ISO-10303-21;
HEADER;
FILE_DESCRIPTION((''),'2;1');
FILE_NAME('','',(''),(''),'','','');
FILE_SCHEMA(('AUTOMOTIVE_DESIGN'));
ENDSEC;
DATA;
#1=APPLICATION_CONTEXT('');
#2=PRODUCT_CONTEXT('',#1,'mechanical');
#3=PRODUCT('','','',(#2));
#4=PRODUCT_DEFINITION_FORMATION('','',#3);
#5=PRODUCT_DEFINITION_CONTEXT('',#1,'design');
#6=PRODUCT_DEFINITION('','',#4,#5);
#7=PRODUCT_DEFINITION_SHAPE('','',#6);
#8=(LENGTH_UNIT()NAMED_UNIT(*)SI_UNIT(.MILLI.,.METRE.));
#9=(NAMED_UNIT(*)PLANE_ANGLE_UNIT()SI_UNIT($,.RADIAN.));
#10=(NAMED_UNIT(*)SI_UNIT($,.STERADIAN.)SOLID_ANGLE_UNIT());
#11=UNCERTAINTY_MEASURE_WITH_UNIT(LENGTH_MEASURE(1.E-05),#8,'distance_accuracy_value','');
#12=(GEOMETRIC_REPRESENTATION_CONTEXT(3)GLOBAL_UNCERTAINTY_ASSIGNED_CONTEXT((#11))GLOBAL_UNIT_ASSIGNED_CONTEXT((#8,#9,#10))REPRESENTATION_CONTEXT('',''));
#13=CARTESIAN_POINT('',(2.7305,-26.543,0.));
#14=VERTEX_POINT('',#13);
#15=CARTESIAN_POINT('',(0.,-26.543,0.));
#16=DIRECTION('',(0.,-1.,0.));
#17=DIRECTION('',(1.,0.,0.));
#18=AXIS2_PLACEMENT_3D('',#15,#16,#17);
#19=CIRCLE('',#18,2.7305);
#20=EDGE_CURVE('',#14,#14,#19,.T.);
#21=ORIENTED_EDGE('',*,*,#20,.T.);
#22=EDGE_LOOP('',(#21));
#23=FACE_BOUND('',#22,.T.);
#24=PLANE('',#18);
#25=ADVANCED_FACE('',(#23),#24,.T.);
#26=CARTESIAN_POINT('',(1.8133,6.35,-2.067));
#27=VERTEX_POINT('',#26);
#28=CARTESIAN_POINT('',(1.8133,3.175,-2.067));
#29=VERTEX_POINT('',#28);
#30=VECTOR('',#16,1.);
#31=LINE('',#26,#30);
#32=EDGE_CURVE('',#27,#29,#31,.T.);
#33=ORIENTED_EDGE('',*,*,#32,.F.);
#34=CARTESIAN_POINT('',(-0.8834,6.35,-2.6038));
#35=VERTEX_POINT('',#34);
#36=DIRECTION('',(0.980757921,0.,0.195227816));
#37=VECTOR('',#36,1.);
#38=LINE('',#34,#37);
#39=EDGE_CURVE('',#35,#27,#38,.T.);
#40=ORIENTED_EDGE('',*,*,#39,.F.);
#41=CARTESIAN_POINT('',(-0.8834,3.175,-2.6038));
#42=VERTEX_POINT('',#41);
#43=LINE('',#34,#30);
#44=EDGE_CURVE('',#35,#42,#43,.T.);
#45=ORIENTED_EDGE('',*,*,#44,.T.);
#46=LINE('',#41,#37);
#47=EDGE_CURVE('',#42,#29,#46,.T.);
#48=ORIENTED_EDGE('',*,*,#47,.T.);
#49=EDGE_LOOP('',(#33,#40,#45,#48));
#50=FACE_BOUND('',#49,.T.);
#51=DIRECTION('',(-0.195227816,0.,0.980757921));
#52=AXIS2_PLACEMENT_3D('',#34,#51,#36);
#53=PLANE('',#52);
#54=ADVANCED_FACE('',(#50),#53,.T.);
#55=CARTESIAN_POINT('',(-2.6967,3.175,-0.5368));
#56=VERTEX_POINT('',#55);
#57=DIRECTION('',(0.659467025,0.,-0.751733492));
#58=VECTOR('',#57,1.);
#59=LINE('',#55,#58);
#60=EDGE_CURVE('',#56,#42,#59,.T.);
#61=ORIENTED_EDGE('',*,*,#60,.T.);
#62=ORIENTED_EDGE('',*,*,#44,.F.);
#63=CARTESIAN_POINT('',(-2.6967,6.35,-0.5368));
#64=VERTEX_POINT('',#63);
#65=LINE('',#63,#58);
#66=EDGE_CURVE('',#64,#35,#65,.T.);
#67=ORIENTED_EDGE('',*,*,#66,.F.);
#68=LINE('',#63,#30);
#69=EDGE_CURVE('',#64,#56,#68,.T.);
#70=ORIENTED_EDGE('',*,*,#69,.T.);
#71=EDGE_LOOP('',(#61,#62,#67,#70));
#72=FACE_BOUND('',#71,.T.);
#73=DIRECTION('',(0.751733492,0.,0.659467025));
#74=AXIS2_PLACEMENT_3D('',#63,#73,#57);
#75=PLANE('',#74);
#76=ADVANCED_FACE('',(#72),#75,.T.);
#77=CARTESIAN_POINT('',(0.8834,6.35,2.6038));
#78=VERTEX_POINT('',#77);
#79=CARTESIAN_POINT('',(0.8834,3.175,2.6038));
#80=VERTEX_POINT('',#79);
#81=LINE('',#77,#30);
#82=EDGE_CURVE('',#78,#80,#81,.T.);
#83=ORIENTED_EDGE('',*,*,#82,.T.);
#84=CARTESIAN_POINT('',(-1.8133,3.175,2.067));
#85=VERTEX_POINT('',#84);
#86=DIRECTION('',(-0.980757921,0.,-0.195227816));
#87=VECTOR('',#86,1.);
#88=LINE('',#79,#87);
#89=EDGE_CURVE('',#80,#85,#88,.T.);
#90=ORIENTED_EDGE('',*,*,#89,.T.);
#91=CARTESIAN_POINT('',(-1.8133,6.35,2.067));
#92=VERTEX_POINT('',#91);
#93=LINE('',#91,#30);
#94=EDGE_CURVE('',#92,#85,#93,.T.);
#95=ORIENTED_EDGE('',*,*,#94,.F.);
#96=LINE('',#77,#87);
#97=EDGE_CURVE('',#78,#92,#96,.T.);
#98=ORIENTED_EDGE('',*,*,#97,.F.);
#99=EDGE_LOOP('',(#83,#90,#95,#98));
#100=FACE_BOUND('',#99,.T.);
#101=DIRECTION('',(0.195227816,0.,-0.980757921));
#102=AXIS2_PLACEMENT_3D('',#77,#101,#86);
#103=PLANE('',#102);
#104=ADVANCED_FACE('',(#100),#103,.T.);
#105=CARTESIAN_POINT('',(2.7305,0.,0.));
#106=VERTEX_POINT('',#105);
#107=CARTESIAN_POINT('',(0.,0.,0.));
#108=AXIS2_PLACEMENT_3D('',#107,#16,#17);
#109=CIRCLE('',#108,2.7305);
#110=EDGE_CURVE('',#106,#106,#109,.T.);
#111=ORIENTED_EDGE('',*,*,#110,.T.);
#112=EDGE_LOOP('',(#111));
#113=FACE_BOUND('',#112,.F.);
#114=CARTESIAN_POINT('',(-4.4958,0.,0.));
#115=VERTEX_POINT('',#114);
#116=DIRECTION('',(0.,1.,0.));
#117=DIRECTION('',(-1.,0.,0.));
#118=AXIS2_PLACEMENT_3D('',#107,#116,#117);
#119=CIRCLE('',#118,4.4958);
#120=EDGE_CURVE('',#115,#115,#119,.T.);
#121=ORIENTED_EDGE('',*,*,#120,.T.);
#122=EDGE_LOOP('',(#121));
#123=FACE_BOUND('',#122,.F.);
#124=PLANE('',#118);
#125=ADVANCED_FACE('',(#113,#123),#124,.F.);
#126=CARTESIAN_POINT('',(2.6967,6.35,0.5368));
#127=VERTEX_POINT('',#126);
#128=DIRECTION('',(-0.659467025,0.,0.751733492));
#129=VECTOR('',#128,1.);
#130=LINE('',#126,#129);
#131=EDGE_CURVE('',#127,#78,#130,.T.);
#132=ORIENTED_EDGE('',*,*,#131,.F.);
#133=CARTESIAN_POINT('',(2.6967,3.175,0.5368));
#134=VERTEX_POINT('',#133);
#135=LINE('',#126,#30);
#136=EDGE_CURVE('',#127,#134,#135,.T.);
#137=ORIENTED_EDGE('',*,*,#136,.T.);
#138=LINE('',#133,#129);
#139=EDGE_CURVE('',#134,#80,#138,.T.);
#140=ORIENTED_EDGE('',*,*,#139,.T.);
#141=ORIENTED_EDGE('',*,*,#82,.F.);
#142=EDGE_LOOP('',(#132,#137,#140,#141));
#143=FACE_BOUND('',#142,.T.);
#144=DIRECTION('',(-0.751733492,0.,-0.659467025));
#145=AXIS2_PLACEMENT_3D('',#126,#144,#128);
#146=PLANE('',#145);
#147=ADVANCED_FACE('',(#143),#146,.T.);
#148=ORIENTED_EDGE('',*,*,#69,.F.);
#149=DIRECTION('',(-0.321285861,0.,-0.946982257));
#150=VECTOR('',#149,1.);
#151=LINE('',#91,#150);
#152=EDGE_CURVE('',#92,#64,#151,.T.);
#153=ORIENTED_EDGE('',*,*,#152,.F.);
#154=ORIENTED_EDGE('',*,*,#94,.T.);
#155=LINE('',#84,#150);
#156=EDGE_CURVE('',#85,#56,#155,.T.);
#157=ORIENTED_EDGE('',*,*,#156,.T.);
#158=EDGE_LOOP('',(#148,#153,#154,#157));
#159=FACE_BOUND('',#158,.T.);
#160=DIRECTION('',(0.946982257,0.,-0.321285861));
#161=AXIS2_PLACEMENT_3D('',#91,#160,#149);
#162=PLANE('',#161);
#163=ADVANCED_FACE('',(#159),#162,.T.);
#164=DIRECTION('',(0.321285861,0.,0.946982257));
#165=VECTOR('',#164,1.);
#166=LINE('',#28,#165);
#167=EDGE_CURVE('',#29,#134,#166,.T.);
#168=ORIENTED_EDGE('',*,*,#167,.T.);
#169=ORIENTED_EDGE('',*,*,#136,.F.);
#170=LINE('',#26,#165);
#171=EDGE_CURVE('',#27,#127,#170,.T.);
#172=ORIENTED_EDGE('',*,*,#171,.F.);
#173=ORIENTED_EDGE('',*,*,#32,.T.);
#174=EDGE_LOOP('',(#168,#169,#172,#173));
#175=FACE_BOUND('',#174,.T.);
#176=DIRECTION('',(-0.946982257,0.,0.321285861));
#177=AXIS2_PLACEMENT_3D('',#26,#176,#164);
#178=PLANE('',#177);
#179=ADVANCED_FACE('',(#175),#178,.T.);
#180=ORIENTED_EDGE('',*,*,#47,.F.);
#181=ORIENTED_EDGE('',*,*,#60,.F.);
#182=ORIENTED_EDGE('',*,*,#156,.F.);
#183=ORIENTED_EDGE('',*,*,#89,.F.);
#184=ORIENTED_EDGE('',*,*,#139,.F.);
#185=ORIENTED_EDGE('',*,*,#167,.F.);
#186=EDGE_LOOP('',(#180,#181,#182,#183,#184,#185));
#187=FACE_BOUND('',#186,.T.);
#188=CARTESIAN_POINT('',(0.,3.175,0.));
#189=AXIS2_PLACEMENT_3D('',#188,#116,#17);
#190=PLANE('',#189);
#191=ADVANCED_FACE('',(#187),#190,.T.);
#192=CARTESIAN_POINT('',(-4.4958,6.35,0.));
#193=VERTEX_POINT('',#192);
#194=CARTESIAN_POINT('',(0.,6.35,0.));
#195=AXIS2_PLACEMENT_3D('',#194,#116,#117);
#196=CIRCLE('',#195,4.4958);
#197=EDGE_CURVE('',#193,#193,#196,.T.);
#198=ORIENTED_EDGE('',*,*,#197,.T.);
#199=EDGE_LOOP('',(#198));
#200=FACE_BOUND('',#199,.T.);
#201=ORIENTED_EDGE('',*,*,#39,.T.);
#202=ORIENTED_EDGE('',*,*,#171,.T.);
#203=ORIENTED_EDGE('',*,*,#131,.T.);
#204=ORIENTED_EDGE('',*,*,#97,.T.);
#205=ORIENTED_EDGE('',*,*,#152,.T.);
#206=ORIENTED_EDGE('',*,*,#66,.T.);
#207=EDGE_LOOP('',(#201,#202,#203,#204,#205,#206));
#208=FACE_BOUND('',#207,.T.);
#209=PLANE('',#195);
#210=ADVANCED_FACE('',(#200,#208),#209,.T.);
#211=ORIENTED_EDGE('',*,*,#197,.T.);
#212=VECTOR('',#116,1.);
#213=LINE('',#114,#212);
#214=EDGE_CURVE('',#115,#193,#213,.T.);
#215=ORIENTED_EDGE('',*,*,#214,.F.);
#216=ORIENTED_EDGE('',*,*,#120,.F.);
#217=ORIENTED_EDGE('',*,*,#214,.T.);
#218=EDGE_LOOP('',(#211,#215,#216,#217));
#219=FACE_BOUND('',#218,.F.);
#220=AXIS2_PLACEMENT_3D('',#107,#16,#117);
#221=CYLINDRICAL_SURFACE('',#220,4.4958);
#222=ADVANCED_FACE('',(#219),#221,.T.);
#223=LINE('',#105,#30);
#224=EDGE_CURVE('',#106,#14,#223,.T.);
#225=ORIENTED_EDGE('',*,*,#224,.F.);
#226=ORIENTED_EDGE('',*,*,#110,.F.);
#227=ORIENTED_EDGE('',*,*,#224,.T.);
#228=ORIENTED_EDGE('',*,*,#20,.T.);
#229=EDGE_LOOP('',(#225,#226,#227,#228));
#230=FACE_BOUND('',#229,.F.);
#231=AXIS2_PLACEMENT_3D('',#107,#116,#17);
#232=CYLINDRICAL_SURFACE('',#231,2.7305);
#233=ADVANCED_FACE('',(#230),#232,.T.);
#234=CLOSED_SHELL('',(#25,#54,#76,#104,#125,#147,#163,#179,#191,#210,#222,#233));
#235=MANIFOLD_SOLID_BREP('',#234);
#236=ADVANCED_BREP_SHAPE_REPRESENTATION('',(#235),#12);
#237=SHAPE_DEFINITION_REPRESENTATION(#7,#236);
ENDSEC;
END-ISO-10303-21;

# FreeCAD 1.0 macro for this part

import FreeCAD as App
import Part
import Sketcher
Q = App.Units.Quantity


def add_polygon(sketch, points):
    """Adds a closed chain of lines whose ends are joined by coincident constraints."""
    first, n = sketch.GeometryCount, len(points)
    for a, b in zip(points, points[1:] + points[:1]):
        sketch.addGeometry(Part.LineSegment(App.Vector(*a, 0), App.Vector(*b, 0)), False)
    for i in range(n):
        sketch.addConstraint(Sketcher.Constraint("Coincident", first + i, 2, first + (i + 1) % n, 1))

doc = App.newDocument("Part")
params = doc.addObject("Spreadsheet::Sheet", "Params")
for row, (alias, value) in enumerate([
    ("sketch1_diameter", "0.354 in"),
    ("pad1_length", "0.25 in"),
    ("pocket1_length", "0.125 in"),
    ("sketch3_diameter", "0.215 in"),
    ("pad2_length", "1.045 in"),
], start=1):
    params.set(f"A{row}", alias)
    params.set(f"B{row}", "=" + value)
    params.setAlias(f"B{row}", alias)

body = doc.addObject("PartDesign::Body", "Body")

sketch1 = body.newObject("Sketcher::SketchObject", "Sketch")
sketch1.AttachmentSupport = (doc.getObject("XZ_Plane"), [""])
sketch1.MapMode = "FlatFace"
sketch1.addGeometry(Part.Circle(App.Vector(0, 0, 0), App.Vector(0, 0, 1), 4.5), False)
sketch1.addConstraint([
    Sketcher.Constraint("Coincident", 0, 3, -1, 1),
    Sketcher.Constraint("Diameter", 0, Q("0.354 in")),
])
sketch1.setExpression("Constraints[1]", "Params.sketch1_diameter")
pad1 = body.newObject("PartDesign::Pad", "Pad")
pad1.Profile = sketch1
pad1.setExpression("Length", "Params.pad1_length")
pad1.Reversed = True

sketch2 = body.newObject("Sketcher::SketchObject", "Sketch001")
sketch2.AttachmentSupport = (doc.getObject("XZ_Plane"), [""])
sketch2.MapMode = "FlatFace"
sketch2.AttachmentOffset = App.Placement(App.Vector(0, 0, -0.25 * 25.4), App.Rotation())
add_polygon(sketch2, [(1.8, -2.1), (-0.9, -2.6), (-2.7, -0.5), (-1.8, 2.1), (0.9, 2.6), (2.7, 0.5)])
sketch2.addConstraint([
    Sketcher.Constraint("Symmetric", 0, 2, 3, 2, -1, 1),
    Sketcher.Constraint("Symmetric", 1, 2, 4, 2, -1, 1),
    Sketcher.Constraint("Symmetric", 2, 2, 5, 2, -1, 1),
    Sketcher.Constraint("Equal", 0, 1),
    Sketcher.Constraint("Equal", 1, 2),
    Sketcher.Constraint("Angle", 1, Q("131.2592 deg")),
    Sketcher.Constraint("Angle", 2, Q("71.2593 deg")),
    Sketcher.Constraint("DistanceY", 0, 2, -1, 1, Q("0.1025 in")),
    Sketcher.Constraint("DistanceX", 2, 2, -1, 1, Q("0.0714 in")),
])
pocket1 = body.newObject("PartDesign::Pocket", "Pocket")
pocket1.Profile = sketch2
pocket1.setExpression("Length", "Params.pocket1_length")
pocket1.Reversed = True

sketch3 = body.newObject("Sketcher::SketchObject", "Sketch002")
sketch3.AttachmentSupport = (doc.getObject("XZ_Plane"), [""])
sketch3.MapMode = "FlatFace"
sketch3.addGeometry(Part.Circle(App.Vector(0, 0, 0), App.Vector(0, 0, 1), 2.7), False)
sketch3.addConstraint([
    Sketcher.Constraint("Coincident", 0, 3, -1, 1),
    Sketcher.Constraint("Diameter", 0, Q("0.215 in")),
])
sketch3.setExpression("Constraints[1]", "Params.sketch3_diameter")
pad2 = body.newObject("PartDesign::Pad", "Pad001")
pad2.Profile = sketch3
pad2.setExpression("Length", "Params.pad2_length")

doc.recompute()
